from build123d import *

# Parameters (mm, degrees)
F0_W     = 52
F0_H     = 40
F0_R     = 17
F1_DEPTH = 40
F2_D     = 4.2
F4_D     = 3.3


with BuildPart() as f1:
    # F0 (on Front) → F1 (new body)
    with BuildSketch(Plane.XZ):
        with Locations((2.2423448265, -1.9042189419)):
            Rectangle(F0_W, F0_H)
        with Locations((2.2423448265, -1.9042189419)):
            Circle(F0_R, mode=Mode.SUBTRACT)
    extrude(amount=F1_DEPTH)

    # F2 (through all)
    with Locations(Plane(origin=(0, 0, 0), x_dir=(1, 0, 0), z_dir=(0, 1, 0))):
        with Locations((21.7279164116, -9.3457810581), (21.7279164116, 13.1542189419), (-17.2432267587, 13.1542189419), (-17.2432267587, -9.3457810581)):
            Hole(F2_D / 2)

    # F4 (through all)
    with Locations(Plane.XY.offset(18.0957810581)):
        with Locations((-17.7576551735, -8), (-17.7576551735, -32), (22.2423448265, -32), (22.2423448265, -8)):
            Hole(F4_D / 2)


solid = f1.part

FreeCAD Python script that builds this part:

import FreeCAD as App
import Part
import Sketcher

V = App.Vector


def add_polygon(sketch, points):
    """Adds a closed chain of lines whose ends are joined by coincident constraints."""
    first, n = sketch.GeometryCount, len(points)
    for a, b in zip(points, points[1:] + points[:1]):
        sketch.addGeometry(Part.LineSegment(App.Vector(*a, 0), App.Vector(*b, 0)), False)
    for i in range(n):
        sketch.addConstraint(Sketcher.Constraint("Coincident", first + i, 2, first + (i + 1) % n, 1))

doc = App.newDocument("Part")
params = doc.addObject("Spreadsheet::Sheet", "Params")
for row, (alias, value) in enumerate([
    ("sketch1_diameter", "34 mm"),
    ("sketch1_width", "52 mm"),
    ("sketch1_height", "40 mm"),
    ("pad1_length", "40 mm"),
    ("sketch2_diameter", "4.2 mm"),
    ("hole_diameter", "4.2 mm"),
    ("sketch3_diameter", "3.3 mm"),
    ("hole2_diameter", "3.3 mm"),
], start=1):
    params.set(f"A{row}", alias)
    params.set(f"B{row}", "=" + value)
    params.setAlias(f"B{row}", alias)

body = doc.addObject("PartDesign::Body", "Body")

# Sketch on XZ plane
sketch1 = doc.addObject("Sketcher::SketchObject", "Sketch")
body.addObject(sketch1)
sketch1.AttachmentSupport = (doc.XZ_Plane, [""])
sketch1.MapMode = "FlatFace"
add_polygon(sketch1, [(-24, 18), (-24, -22), (28, -22), (28, 18)])  # lines 0-3
sketch1.addGeometry(Part.Circle(V(2, -2, 0), V(0, 0, 1), 17), False)  # 4
sketch1.addConstraint([
    Sketcher.Constraint("Vertical", 0),
    Sketcher.Constraint("Horizontal", 1),
    Sketcher.Constraint("Vertical", 2),
    Sketcher.Constraint("Horizontal", 3),
    Sketcher.Constraint("Diameter", 4, 34.0),
    Sketcher.Constraint("DistanceX", 1, 1, 1, 2, 52.0),
    Sketcher.Constraint("DistanceY", 0, 2, 0, 1, 40.0),
    Sketcher.Constraint("DistanceX", 0, 2, 4, 3, 26.0),
    Sketcher.Constraint("DistanceY", 0, 2, 4, 3, 20.0),
    Sketcher.Constraint("DistanceY", 4, 3, -1, 1, 1.904219),
    Sketcher.Constraint("DistanceX", -1, 1, 4, 3, 2.242345),
])
sketch1.setExpression("Constraints[8]", "Params.sketch1_diameter")
sketch1.setExpression("Constraints[9]", "Params.sketch1_width")
sketch1.setExpression("Constraints[10]", "Params.sketch1_height")
pad1 = doc.addObject("PartDesign::Pad", "Pad")
body.addObject(pad1)
pad1.Profile = sketch1
pad1.setExpression("Length", "Params.pad1_length")

# Sketch on XZ plane
sketch2 = doc.addObject("Sketcher::SketchObject", "Sketch001")
body.addObject(sketch2)
sketch2.AttachmentSupport = (doc.XZ_Plane, [""])
sketch2.MapMode = "FlatFace"
sketch2.addGeometry([
    Part.Circle(V(21.7, 9.3, 0), V(0, 0, 1), 2.1),
    Part.Circle(V(21.7, -13.2, 0), V(0, 0, 1), 2.1),
    Part.Circle(V(-17.2, -13.2, 0), V(0, 0, 1), 2.1),
    Part.Circle(V(-17.2, 9.3, 0), V(0, 0, 1), 2.1),
], False)
sketch2.addConstraint([
    Sketcher.Constraint("Equal", 0, 1),
    Sketcher.Constraint("Equal", 1, 2),
    Sketcher.Constraint("Equal", 2, 3),
    Sketcher.Constraint("Horizontal", 1, 3, 2, 3),
    Sketcher.Constraint("Horizontal", 0, 3, 3, 3),
    Sketcher.Constraint("Vertical", 0, 3, 1, 3),
    Sketcher.Constraint("Vertical", 2, 3, 3, 3),
    Sketcher.Constraint("Diameter", 0, 4.2),
    Sketcher.Constraint("DistanceY", 1, 3, 0, 3, 22.5),
    Sketcher.Constraint("DistanceY", -1, 1, 0, 3, 9.345781),
    Sketcher.Constraint("DistanceX", -1, 1, 0, 3, 21.727916),
    Sketcher.Constraint("DistanceX", 2, 3, -1, 1, 17.243227),
])
sketch2.setExpression("Constraints[7]", "Params.sketch2_diameter")
doc.recompute()
hole = doc.addObject("PartDesign::Hole", "Hole")
body.addObject(hole)
hole.Profile = sketch2
hole.ThreadType = "None"
hole.setExpression("Diameter", "Params.hole_diameter")
hole.DepthType = "ThroughAll"
hole.Reversed = True

# Sketch on XY plane
sketch3 = doc.addObject("Sketcher::SketchObject", "Sketch002")
body.addObject(sketch3)
sketch3.AttachmentSupport = (doc.XY_Plane, [""])
sketch3.MapMode = "FlatFace"
sketch3.AttachmentOffset = App.Placement(V(0, 0, 18.095781), App.Rotation())
sketch3.addGeometry([
    Part.Circle(V(-17.8, -8, 0), V(0, 0, 1), 1.6),
    Part.Circle(V(-17.8, -32, 0), V(0, 0, 1), 1.6),
    Part.Circle(V(22.2, -32, 0), V(0, 0, 1), 1.6),
    Part.Circle(V(22.2, -8, 0), V(0, 0, 1), 1.6),
], False)
sketch3.addConstraint([
    Sketcher.Constraint("Equal", 0, 1),
    Sketcher.Constraint("Equal", 1, 2),
    Sketcher.Constraint("Equal", 2, 3),
    Sketcher.Constraint("Horizontal", 1, 3, 2, 3),
    Sketcher.Constraint("Horizontal", 0, 3, 3, 3),
    Sketcher.Constraint("Vertical", 0, 3, 1, 3),
    Sketcher.Constraint("Vertical", 2, 3, 3, 3),
    Sketcher.Constraint("Diameter", 0, 3.3),
    Sketcher.Constraint("DistanceY", 0, 3, -1, 1, 8.0),
    Sketcher.Constraint("DistanceY", 1, 3, -1, 1, 32.0),
    Sketcher.Constraint("DistanceX", 1, 3, 2, 3, 40.0),
    Sketcher.Constraint("DistanceX", 0, 3, -1, 1, 17.757655),
])
sketch3.setExpression("Constraints[7]", "Params.sketch3_diameter")
doc.recompute()
hole2 = doc.addObject("PartDesign::Hole", "Hole001")
body.addObject(hole2)
hole2.Profile = sketch3
hole2.ThreadType = "None"
hole2.setExpression("Diameter", "Params.hole2_diameter")
hole2.DepthType = "ThroughAll"

doc.recompute()
